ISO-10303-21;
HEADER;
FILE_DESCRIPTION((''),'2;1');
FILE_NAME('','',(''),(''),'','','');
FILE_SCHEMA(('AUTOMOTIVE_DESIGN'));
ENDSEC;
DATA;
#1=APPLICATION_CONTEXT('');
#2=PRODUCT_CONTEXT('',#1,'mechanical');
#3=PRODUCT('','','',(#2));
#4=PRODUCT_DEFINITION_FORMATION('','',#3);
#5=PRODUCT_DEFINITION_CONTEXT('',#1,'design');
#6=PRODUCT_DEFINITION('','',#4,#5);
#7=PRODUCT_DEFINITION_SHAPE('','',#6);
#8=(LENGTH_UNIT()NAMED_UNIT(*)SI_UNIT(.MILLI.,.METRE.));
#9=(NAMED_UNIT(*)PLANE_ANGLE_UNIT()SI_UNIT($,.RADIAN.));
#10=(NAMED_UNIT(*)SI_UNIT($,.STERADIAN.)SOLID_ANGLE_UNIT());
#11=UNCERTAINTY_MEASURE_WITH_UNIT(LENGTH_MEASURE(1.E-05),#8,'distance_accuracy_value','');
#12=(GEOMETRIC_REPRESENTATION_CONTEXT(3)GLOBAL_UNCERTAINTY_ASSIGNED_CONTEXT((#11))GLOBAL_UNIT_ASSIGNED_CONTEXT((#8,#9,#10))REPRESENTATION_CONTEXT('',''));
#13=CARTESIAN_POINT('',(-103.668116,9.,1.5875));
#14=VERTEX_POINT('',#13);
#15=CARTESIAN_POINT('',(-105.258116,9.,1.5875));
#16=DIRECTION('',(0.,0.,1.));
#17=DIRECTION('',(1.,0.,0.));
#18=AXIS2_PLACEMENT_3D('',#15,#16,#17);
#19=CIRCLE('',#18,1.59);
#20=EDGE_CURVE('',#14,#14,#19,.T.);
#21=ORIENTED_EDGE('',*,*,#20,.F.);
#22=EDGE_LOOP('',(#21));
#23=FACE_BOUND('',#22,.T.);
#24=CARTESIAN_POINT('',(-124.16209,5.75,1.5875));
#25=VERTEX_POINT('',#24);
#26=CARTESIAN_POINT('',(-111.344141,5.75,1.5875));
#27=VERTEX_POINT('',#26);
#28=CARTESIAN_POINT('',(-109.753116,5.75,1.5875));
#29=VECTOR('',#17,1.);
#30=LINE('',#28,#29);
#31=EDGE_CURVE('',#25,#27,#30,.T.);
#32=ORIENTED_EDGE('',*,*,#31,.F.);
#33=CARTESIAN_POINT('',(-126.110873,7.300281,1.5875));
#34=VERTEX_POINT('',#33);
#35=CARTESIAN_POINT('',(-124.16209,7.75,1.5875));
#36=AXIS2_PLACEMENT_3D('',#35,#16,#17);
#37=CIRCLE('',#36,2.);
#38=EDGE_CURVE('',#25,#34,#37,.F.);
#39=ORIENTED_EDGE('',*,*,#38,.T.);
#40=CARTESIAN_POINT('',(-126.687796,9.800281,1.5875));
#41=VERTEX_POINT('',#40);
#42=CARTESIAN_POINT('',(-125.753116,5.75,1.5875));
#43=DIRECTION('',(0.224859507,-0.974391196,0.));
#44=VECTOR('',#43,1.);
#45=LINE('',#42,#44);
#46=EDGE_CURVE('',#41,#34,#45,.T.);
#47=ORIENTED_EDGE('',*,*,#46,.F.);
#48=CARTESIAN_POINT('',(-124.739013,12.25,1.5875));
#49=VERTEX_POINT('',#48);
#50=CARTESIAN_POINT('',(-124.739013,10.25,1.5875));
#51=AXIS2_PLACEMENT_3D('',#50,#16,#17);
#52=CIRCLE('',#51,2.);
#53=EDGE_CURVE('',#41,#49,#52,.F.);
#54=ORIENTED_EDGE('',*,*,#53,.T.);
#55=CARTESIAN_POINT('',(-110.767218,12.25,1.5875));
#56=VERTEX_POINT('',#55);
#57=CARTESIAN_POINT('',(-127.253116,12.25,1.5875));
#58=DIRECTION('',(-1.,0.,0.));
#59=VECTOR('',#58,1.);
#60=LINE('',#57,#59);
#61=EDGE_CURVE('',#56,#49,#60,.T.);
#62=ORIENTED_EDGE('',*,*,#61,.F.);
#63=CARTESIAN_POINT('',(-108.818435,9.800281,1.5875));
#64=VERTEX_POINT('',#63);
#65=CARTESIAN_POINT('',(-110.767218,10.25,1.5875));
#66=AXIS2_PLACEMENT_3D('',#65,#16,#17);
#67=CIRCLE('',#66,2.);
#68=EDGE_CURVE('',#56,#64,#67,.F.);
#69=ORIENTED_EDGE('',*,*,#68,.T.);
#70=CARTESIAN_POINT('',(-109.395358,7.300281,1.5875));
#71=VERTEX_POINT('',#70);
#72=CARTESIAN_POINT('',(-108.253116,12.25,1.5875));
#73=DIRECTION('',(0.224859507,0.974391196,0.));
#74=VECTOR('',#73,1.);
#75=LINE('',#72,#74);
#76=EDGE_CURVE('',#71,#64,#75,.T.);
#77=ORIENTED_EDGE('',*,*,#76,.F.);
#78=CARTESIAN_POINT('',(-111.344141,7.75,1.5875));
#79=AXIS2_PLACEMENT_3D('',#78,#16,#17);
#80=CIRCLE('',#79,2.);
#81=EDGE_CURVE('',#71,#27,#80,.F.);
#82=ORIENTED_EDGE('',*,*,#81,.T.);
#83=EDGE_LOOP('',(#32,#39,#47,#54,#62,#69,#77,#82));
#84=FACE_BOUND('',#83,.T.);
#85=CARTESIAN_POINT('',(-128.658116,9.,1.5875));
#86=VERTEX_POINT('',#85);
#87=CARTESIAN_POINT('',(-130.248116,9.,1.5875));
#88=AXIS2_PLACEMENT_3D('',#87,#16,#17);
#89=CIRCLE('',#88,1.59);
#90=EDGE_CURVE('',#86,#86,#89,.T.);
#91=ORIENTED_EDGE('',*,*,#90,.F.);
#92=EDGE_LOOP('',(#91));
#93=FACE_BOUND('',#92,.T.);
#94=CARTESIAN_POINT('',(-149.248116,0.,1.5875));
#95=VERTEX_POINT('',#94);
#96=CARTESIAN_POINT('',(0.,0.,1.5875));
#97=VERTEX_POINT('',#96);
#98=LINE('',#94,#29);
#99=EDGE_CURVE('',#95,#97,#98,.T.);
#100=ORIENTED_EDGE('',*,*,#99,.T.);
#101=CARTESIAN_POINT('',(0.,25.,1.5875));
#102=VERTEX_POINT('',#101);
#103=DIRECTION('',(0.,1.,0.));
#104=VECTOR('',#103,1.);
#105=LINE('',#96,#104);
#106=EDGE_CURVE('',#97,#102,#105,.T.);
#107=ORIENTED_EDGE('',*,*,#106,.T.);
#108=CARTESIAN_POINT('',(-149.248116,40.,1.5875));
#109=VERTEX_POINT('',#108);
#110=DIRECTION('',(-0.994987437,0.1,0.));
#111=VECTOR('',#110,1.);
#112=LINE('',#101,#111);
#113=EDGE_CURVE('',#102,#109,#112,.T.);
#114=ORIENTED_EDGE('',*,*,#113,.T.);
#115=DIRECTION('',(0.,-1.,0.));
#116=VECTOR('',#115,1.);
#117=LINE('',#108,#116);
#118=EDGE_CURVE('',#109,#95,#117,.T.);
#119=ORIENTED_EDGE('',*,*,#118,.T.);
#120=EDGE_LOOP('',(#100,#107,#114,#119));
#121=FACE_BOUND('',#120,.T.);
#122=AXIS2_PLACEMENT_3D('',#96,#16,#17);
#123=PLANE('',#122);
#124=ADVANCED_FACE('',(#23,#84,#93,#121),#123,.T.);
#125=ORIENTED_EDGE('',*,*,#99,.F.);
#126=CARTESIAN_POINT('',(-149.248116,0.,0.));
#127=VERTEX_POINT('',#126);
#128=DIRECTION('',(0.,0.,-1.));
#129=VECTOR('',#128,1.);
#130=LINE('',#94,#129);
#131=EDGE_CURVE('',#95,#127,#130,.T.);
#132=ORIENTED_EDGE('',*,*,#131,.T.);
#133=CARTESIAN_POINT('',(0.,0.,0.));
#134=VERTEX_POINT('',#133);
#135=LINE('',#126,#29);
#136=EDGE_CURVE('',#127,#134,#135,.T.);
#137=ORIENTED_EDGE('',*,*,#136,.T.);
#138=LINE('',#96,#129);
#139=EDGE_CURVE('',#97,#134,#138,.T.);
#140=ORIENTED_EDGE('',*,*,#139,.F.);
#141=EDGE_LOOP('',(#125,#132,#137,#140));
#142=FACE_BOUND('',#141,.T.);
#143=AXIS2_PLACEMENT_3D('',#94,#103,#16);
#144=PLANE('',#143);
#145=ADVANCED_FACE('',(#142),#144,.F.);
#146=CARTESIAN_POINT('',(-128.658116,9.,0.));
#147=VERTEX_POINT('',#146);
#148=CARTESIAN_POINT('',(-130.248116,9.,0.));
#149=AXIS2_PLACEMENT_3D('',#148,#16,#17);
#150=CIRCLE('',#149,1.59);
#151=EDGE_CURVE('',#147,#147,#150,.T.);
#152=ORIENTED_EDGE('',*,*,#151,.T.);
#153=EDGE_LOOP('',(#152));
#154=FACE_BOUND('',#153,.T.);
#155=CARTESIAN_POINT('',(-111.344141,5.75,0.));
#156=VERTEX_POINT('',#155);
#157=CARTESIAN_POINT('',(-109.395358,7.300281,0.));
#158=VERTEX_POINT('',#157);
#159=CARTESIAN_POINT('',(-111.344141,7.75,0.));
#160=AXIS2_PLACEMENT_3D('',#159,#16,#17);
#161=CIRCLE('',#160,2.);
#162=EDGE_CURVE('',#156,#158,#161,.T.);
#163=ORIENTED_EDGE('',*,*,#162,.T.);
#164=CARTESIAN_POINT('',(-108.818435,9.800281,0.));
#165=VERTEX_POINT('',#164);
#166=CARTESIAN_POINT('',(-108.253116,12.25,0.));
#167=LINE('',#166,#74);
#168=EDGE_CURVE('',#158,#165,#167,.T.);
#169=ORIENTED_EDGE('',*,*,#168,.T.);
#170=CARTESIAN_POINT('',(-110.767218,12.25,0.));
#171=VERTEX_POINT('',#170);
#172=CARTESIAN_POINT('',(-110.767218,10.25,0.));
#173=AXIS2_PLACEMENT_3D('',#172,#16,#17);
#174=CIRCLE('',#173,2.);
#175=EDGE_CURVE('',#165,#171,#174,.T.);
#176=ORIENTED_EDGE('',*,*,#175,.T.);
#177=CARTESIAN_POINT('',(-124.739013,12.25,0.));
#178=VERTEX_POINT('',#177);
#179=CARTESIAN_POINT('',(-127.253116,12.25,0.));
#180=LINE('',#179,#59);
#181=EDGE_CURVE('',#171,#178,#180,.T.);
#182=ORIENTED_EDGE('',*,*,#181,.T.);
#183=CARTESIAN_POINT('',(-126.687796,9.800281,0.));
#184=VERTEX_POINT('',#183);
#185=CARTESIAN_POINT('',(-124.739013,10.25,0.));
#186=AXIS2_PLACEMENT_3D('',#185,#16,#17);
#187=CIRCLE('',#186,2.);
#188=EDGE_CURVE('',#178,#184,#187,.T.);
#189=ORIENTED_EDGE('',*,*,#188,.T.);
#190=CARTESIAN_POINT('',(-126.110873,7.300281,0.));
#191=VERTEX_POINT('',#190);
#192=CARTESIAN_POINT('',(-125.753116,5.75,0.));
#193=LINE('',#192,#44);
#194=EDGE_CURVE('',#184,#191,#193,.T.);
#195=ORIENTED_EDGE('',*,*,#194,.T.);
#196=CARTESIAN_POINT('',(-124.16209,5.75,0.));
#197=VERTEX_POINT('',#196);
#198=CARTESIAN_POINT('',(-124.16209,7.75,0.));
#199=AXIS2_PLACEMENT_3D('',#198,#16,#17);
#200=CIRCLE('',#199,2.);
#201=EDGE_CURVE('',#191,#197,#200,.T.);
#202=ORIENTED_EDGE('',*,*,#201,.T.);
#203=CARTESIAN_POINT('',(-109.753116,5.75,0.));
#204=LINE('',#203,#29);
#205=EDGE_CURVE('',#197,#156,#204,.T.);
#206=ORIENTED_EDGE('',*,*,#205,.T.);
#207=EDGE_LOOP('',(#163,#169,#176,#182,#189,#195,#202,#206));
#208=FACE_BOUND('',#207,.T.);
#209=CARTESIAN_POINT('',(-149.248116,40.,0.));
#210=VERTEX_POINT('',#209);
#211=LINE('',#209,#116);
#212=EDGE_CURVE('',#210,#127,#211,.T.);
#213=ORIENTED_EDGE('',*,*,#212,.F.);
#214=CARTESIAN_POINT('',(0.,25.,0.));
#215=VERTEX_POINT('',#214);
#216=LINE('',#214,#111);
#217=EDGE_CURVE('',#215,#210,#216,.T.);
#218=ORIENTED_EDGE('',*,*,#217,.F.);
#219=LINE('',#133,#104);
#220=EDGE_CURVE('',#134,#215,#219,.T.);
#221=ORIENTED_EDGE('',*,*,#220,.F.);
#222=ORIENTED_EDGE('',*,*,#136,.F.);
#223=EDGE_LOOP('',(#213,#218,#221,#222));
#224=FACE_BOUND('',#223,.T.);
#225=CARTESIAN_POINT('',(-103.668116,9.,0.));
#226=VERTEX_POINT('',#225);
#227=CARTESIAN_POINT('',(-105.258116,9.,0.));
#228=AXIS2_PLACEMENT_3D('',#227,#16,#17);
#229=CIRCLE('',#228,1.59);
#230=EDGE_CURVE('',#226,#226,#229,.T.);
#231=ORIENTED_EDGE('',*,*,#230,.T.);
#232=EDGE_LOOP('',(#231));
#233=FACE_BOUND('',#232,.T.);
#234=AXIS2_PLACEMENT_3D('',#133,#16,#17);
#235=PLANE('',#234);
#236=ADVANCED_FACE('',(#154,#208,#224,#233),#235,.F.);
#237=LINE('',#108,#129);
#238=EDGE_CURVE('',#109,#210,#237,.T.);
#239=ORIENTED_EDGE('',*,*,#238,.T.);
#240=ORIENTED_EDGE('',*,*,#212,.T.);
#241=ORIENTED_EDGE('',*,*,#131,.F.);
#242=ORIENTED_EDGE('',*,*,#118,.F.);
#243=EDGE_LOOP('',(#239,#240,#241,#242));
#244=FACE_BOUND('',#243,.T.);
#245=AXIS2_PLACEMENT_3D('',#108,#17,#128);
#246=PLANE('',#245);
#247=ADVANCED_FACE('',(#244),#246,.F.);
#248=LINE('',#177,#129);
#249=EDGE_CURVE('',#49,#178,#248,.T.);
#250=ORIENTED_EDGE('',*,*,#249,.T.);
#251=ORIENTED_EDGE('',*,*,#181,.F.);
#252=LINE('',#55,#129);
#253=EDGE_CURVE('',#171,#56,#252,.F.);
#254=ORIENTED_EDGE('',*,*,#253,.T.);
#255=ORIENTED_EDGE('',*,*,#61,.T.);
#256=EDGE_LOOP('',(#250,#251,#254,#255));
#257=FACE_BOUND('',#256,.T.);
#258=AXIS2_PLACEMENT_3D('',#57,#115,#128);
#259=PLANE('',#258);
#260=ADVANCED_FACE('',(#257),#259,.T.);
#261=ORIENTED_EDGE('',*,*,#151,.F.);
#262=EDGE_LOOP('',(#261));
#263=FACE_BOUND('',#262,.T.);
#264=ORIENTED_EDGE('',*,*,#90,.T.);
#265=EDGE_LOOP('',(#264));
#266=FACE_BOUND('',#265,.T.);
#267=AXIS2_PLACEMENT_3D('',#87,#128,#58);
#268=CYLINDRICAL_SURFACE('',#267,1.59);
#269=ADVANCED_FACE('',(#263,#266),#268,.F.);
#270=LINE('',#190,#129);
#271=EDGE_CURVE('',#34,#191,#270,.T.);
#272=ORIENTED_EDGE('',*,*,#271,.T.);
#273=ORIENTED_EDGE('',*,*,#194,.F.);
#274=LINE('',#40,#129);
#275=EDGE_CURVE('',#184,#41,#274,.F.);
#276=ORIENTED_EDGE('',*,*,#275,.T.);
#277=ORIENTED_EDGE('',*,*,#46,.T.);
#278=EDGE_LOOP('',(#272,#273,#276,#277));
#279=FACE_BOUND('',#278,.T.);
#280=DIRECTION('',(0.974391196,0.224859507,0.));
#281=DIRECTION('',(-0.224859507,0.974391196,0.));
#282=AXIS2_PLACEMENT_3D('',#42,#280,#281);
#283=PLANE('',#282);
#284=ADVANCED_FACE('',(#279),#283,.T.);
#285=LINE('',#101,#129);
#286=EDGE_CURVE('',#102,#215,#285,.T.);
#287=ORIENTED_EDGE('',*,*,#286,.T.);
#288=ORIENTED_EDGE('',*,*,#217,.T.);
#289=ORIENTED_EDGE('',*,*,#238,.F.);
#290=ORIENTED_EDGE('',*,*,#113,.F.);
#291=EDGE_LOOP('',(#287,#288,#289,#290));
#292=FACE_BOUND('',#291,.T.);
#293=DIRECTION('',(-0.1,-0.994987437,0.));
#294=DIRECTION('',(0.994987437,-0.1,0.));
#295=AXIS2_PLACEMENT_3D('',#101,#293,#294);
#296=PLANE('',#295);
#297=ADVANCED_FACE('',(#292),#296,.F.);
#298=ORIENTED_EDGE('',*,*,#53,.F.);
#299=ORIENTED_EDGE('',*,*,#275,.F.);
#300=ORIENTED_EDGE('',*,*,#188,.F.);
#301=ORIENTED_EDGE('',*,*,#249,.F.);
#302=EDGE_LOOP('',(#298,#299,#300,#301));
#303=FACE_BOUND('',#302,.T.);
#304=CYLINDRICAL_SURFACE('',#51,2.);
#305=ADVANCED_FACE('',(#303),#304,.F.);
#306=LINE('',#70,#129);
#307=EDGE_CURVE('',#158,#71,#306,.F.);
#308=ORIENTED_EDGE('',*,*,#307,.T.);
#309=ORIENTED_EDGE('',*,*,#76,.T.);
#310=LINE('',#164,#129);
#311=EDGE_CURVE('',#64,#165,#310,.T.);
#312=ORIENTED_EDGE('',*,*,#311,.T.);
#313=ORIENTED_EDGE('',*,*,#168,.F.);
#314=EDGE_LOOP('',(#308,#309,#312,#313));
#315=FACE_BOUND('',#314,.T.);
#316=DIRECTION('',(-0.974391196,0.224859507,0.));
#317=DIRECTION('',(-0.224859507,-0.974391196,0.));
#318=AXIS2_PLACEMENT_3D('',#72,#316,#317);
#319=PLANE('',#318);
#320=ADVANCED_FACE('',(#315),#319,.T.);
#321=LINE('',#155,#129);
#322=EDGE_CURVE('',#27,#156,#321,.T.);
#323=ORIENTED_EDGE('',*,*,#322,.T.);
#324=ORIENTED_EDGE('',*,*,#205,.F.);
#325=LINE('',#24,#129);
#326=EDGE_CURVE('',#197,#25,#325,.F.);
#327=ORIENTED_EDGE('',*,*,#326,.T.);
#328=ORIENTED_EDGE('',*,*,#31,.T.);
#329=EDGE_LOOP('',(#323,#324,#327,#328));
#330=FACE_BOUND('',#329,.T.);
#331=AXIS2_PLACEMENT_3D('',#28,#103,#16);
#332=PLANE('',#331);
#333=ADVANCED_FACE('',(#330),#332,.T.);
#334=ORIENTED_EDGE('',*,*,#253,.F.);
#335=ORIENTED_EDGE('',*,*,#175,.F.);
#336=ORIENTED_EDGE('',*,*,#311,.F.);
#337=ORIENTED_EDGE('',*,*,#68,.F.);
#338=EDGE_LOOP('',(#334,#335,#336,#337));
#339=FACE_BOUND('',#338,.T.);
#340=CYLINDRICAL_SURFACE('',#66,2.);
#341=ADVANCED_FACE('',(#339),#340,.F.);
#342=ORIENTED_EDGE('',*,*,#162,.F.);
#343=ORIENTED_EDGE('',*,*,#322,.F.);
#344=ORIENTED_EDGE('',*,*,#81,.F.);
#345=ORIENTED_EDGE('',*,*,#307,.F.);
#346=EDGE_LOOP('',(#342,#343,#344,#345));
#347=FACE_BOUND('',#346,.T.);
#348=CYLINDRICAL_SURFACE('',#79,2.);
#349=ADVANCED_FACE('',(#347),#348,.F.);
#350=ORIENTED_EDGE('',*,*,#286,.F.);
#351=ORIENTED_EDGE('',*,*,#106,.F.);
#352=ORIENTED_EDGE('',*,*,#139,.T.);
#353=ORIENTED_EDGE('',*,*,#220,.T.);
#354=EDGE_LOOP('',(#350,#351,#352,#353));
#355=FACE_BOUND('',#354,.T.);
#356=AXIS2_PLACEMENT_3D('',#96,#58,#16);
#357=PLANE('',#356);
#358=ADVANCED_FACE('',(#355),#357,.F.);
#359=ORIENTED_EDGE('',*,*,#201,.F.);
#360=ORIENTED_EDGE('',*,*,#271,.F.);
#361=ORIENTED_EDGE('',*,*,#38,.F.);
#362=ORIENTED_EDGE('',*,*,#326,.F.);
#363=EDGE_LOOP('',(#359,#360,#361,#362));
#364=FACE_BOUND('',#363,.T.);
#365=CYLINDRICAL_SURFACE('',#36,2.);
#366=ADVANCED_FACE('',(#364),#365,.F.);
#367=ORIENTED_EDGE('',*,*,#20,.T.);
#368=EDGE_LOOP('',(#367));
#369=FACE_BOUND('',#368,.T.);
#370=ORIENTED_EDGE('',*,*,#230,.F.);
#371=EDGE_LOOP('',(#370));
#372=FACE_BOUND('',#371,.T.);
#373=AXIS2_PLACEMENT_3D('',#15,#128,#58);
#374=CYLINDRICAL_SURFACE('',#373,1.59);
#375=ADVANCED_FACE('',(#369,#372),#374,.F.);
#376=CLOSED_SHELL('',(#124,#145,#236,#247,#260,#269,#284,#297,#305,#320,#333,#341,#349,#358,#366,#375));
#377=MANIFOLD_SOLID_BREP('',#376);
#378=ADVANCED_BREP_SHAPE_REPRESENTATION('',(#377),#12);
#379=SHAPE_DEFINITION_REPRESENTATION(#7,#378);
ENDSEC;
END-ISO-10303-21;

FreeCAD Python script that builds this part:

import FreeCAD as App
import Part
import Sketcher
from FreeCAD import Vector


def edges_at(feature, points):
    """Names of the edges that pass closest to the given points."""
    edges = feature.Shape.Edges
    near = lambda p: min(range(len(edges)), key=lambda i: edges[i].distToShape(Part.Vertex(*p))[0])
    return sorted({f"Edge{near(p) + 1}" for p in points})


def add_polygon(sketch, points):
    """Adds a closed chain of lines whose ends are joined by coincident constraints."""
    first, n = sketch.GeometryCount, len(points)
    for a, b in zip(points, points[1:] + points[:1]):
        sketch.addGeometry(Part.LineSegment(App.Vector(*a, 0), App.Vector(*b, 0)), False)
    for i in range(n):
        sketch.addConstraint(Sketcher.Constraint("Coincident", first + i, 2, first + (i + 1) % n, 1))

doc = App.newDocument("Part")
params = doc.addObject("Spreadsheet::Sheet", "Params")
for row, (alias, value) in enumerate([
    ("sketch1_diameter", "3.18 mm"),
    ("sketch1_width", "19 mm"),
    ("sketch1_width2", "16 mm"),
    ("sketch1_height", "40 mm"),
    ("sketch1_height2", "25 mm"),
    ("pad1_length", "1.5875 mm"),
    ("fillet_radius", "2 mm"),
], start=1):
    params.set(f"A{row}", alias)
    params.set(f"B{row}", "=" + value)
    params.setAlias(f"B{row}", alias)

body = doc.addObject("PartDesign::Body", "Body")

sketch1 = doc.addObject("Sketcher::SketchObject", "Sketch")
body.addObject(sketch1)
sketch1.AttachmentSupport = (doc.XY_Plane, [""])
sketch1.MapMode = "FlatFace"
add_polygon(sketch1, [(-149.2, 40), (-149.2, 0), (0, 0), (0, 25)])
sketch1.addGeometry(Part.Circle(Vector(-130.2, 9, 0), Vector(0, 0, 1), 1.6), False)
add_polygon(sketch1, [(-125.8, 5.8), (-127.3, 12.2), (-108.3, 12.2), (-109.8, 5.8)])
sketch1.addGeometry(Part.Circle(Vector(-105.3, 9, 0), Vector(0, 0, 1), 1.6), False)
sketch1.addConstraint(Sketcher.Constraint("Vertical", 0))
sketch1.addConstraint(Sketcher.Constraint("Horizontal", 1))
sketch1.addConstraint(Sketcher.Constraint("Vertical", 2))
sketch1.addConstraint(Sketcher.Constraint("Horizontal", 6))
sketch1.addConstraint(Sketcher.Constraint("Horizontal", 8))
sketch1.addConstraint(Sketcher.Constraint("Coincident", 1, 2, -1, 1))
sketch1.addConstraint(Sketcher.Constraint("Equal", 4, 9))
sketch1.addConstraint(Sketcher.Constraint("Horizontal", 4, 3, 9, 3))
sketch1.addConstraint(Sketcher.Constraint("Equal", 5, 7))
sketch1.addConstraint(Sketcher.Constraint("Diameter", 4, 3.18))
sketch1.addConstraint(Sketcher.Constraint("DistanceX", 6, 1, 6, 2, 19.0))
sketch1.addConstraint(Sketcher.Constraint("DistanceX", 8, 2, 8, 1, 16.0))
sketch1.addConstraint(Sketcher.Constraint("DistanceY", 0, 2, 0, 1, 40.0))
sketch1.addConstraint(Sketcher.Constraint("DistanceY", 2, 1, 2, 2, 25.0))
sketch1.addConstraint(Sketcher.Constraint("Distance", 3, 150.0))
sketch1.addConstraint(Sketcher.Constraint("DistanceY", -1, 1, 4, 3, 9.0))
sketch1.addConstraint(Sketcher.Constraint("DistanceX", 0, 2, 4, 3, 19.0))
sketch1.addConstraint(Sketcher.Constraint("DistanceY", 7, 2, 6, 2, 6.5))
sketch1.addConstraint(Sketcher.Constraint("DistanceY", -1, 1, 5, 2, 12.25))
sketch1.addConstraint(Sketcher.Constraint("DistanceX", 4, 3, 9, 3, 24.99))
sketch1.addConstraint(Sketcher.Constraint("DistanceX", 4, 3, 5, 2, 2.995))
sketch1.setExpression("Constraints[17]", "Params.sketch1_diameter")
sketch1.setExpression("Constraints[18]", "Params.sketch1_width")
sketch1.setExpression("Constraints[19]", "Params.sketch1_width2")
sketch1.setExpression("Constraints[20]", "Params.sketch1_height")
sketch1.setExpression("Constraints[21]", "Params.sketch1_height2")
pad1 = doc.addObject("PartDesign::Pad", "Pad")
body.addObject(pad1)
pad1.Profile = sketch1
pad1.setExpression("Length", "Params.pad1_length")
doc.recompute()

fillet = doc.addObject("PartDesign::Fillet", "Fillet")
body.addObject(fillet)
fillet.Base = (pad1, edges_at(pad1, [
    (-127.253, 12.25, 0.794),
    (-125.753, 5.75, 0.794),
    (-109.753, 5.75, 0.794),
    (-108.253, 12.25, 0.794),
]))
fillet.setExpression("Radius", "Params.fillet_radius")

doc.recompute()
